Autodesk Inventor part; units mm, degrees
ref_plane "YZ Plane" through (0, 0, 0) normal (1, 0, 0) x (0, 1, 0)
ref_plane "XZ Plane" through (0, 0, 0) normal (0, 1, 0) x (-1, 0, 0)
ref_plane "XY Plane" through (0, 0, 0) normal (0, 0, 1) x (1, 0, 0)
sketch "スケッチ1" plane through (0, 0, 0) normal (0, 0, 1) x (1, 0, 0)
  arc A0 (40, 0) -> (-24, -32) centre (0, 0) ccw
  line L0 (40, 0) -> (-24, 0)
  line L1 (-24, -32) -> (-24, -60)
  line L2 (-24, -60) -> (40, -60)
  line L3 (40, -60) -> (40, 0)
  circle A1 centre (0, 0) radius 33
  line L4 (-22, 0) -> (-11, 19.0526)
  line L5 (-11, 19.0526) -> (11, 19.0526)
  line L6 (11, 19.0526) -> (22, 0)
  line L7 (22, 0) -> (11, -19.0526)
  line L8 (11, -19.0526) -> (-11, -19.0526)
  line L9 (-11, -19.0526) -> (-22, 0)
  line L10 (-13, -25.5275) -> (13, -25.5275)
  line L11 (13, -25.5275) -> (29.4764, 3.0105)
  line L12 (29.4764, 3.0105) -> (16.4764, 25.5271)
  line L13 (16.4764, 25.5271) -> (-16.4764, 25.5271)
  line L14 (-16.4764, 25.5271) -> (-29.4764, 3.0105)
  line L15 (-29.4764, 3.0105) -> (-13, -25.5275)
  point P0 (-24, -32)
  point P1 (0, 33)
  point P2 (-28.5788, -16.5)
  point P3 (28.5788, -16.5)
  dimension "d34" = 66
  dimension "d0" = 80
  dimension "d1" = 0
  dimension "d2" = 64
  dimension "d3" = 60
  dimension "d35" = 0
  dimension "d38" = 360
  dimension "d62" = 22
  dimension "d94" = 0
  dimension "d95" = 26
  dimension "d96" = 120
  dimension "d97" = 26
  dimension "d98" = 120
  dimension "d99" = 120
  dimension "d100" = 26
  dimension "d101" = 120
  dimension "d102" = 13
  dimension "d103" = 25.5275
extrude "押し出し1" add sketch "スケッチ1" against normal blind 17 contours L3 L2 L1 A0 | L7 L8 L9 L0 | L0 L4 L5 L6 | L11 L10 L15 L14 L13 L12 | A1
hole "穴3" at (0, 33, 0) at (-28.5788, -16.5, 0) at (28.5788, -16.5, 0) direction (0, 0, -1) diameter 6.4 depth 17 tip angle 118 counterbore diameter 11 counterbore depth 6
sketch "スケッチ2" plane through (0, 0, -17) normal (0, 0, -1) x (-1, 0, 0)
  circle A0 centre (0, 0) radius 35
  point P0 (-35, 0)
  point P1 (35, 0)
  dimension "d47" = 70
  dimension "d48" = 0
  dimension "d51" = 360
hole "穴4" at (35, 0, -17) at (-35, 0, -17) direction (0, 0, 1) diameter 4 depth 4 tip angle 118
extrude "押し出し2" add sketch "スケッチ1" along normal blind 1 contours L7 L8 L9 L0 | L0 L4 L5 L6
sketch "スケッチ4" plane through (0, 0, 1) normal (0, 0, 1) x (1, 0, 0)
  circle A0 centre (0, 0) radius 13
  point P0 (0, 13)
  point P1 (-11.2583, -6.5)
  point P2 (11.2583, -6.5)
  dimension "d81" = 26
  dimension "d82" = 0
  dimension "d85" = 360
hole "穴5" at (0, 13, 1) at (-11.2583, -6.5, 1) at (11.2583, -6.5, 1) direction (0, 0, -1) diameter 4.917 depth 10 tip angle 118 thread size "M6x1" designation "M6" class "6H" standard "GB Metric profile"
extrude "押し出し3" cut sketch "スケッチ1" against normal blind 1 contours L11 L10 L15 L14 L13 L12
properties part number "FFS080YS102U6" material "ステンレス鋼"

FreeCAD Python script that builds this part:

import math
import FreeCAD as App
import Part
import Sketcher
Q = App.Units.Quantity


def add_polygon(sketch, points):
    """Adds a closed chain of lines whose ends are joined by coincident constraints."""
    first, n = sketch.GeometryCount, len(points)
    for a, b in zip(points, points[1:] + points[:1]):
        sketch.addGeometry(Part.LineSegment(App.Vector(*a, 0), App.Vector(*b, 0)), False)
    for i in range(n):
        sketch.addConstraint(Sketcher.Constraint("Coincident", first + i, 2, first + (i + 1) % n, 1))

doc = App.newDocument("Part")
body = doc.addObject("PartDesign::Body", "Body")

# Sketch on XY plane
sketch1 = doc.addObject("Sketcher::SketchObject", "Sketch")
body.addObject(sketch1)
sketch1.AttachmentSupport = (doc.XY_Plane, [""])
sketch1.MapMode = "FlatFace"
sketch1.addGeometry([
    Part.LineSegment(App.Vector(40, -60, 0), App.Vector(40, 0, 0)),
    Part.ArcOfCircle(Part.Circle(App.Vector(0, 0, 0), App.Vector(0, 0, 1), 40), math.radians(0), math.radians(233.130102)),
    Part.LineSegment(App.Vector(-24, -32, 0), App.Vector(-24, -60, 0)),
    Part.LineSegment(App.Vector(-24, -60, 0), App.Vector(40, -60, 0)),
], False)
sketch1.addConstraint([
    Sketcher.Constraint("Tangent", 0, 2, 1, 1),
    Sketcher.Constraint("Coincident", 1, 2, 2, 1),
    Sketcher.Constraint("Coincident", 2, 2, 3, 1),
    Sketcher.Constraint("Coincident", 3, 2, 0, 1),
    Sketcher.Constraint("Vertical", 0),
    Sketcher.Constraint("Vertical", 2),
    Sketcher.Constraint("Horizontal", 3),
    Sketcher.Constraint("Coincident", 1, 3, -1, 1),
    Sketcher.Constraint("Radius", 1, 40.0),
    Sketcher.Constraint("DistanceX", 3, 1, 3, 2, 64.0),
    Sketcher.Constraint("DistanceY", 0, 1, 0, 2, 60.0),
])
pad1 = doc.addObject("PartDesign::Pad", "Pad")
body.addObject(pad1)
pad1.Profile = sketch1
pad1.Length = 17
pad1.Reversed = True

# Sketch on XY plane
sketch2 = doc.addObject("Sketcher::SketchObject", "Sketch001")
body.addObject(sketch2)
sketch2.AttachmentSupport = (doc.XY_Plane, [""])
sketch2.MapMode = "FlatFace"
sketch2.addGeometry([
    Part.Circle(App.Vector(0, 33, 0), App.Vector(0, 0, 1), 3.2),
    Part.Circle(App.Vector(-28.5788, -16.5, 0), App.Vector(0, 0, 1), 3.2),
    Part.Circle(App.Vector(28.5788, -16.5, 0), App.Vector(0, 0, 1), 3.2),
], False)
sketch2.addConstraint([
    Sketcher.Constraint("Equal", 0, 1),
    Sketcher.Constraint("Equal", 1, 2),
    Sketcher.Constraint("Symmetric", 1, 3, 2, 3, -2),
    Sketcher.Constraint("PointOnObject", 0, 3, -2),
    Sketcher.Constraint("Diameter", 0, 6.4),
    Sketcher.Constraint("DistanceY", -1, 1, 0, 3, 33.0),
    Sketcher.Constraint("DistanceY", 1, 3, -1, 1, 16.5),
    Sketcher.Constraint("DistanceX", 1, 3, -1, 1, 28.5788),
])
doc.recompute()
hole = doc.addObject("PartDesign::Hole", "Hole")
body.addObject(hole)
hole.Profile = sketch2
hole.ThreadType = "None"
hole.Diameter = 6.4
hole.DepthType = "Dimension"
hole.Depth = 17
hole.DrillPoint = "Angled"
hole.DrillPointAngle = 118
hole.HoleCutType = "Counterbore"
hole.HoleCutDiameter = 11
hole.HoleCutDepth = 6

# Sketch on XY plane
sketch3 = doc.addObject("Sketcher::SketchObject", "Sketch002")
body.addObject(sketch3)
sketch3.AttachmentSupport = (doc.XY_Plane, [""])
sketch3.MapMode = "FlatFace"
sketch3.AttachmentOffset = App.Placement(App.Vector(0, 0, -17), App.Rotation())
sketch3.addGeometry([
    Part.Circle(App.Vector(35, 0, 0), App.Vector(0, 0, 1), 2),
    Part.Circle(App.Vector(-35, 0, 0), App.Vector(0, 0, 1), 2),
], False)
sketch3.addConstraint([
    Sketcher.Constraint("Equal", 0, 1),
    Sketcher.Constraint("Symmetric", 0, 3, 1, 3, -1, 1),
    Sketcher.Constraint("PointOnObject", 0, 3, -1),
    Sketcher.Constraint("Diameter", 0, 4.0),
    Sketcher.Constraint("DistanceX", -1, 1, 0, 3, 35.0),
])
doc.recompute()
hole2 = doc.addObject("PartDesign::Hole", "Hole001")
body.addObject(hole2)
hole2.Profile = sketch3
hole2.ThreadType = "None"
hole2.Diameter = 4
hole2.DepthType = "Dimension"
hole2.Depth = 4
hole2.DrillPoint = "Angled"
hole2.DrillPointAngle = 118
hole2.Reversed = True

# Sketch on XY plane
sketch4 = doc.addObject("Sketcher::SketchObject", "Sketch003")
body.addObject(sketch4)
sketch4.AttachmentSupport = (doc.XY_Plane, [""])
sketch4.MapMode = "FlatFace"
add_polygon(sketch4, [(11, -19.0526), (22, 0), (11, 19.0526), (-11, 19.0526), (-22, 0), (-11, -19.0526)])  # lines 0-5
sketch4.addConstraint([
    Sketcher.Constraint("Horizontal", 2),
    Sketcher.Constraint("Horizontal", 5),
    Sketcher.Constraint("Symmetric", 0, 2, 3, 2, -1, 1),
    Sketcher.Constraint("Symmetric", 1, 2, 4, 2, -1, 1),
    Sketcher.Constraint("PointOnObject", 0, 2, -1),
    Sketcher.Constraint("Parallel", 0, 3),
    Sketcher.Constraint("Vertical", 2, 2, 4, 2),
    Sketcher.Constraint("DistanceX", 2, 2, 2, 1, 22.0),
    Sketcher.Constraint("Angle", 0, Q("60 deg")),
    Sketcher.Constraint("Distance", 0, 22.0),
])
pad2 = doc.addObject("PartDesign::Pad", "Pad001")
body.addObject(pad2)
pad2.Profile = sketch4
pad2.Length = 1

# Sketch on XY plane
sketch5 = doc.addObject("Sketcher::SketchObject", "Sketch004")
body.addObject(sketch5)
sketch5.AttachmentSupport = (doc.XY_Plane, [""])
sketch5.MapMode = "FlatFace"
sketch5.AttachmentOffset = App.Placement(App.Vector(0, 0, 1), App.Rotation())
sketch5.addGeometry([
    Part.Circle(App.Vector(0, 13, 0), App.Vector(0, 0, 1), 2.4585),
    Part.Circle(App.Vector(-11.2583, -6.5, 0), App.Vector(0, 0, 1), 2.4585),
    Part.Circle(App.Vector(11.2583, -6.5, 0), App.Vector(0, 0, 1), 2.4585),
], False)
sketch5.addConstraint([
    Sketcher.Constraint("Equal", 0, 1),
    Sketcher.Constraint("Equal", 1, 2),
    Sketcher.Constraint("Symmetric", 1, 3, 2, 3, -2),
    Sketcher.Constraint("PointOnObject", 0, 3, -2),
    Sketcher.Constraint("Diameter", 0, 4.917),
    Sketcher.Constraint("DistanceY", -1, 1, 0, 3, 13.0),
    Sketcher.Constraint("DistanceY", 1, 3, -1, 1, 6.5),
    Sketcher.Constraint("DistanceX", 1, 3, -1, 1, 11.2583),
])
doc.recompute()
hole3 = doc.addObject("PartDesign::Hole", "Hole002")
body.addObject(hole3)
hole3.Profile = sketch5
hole3.ThreadType = "None"
hole3.Diameter = 4.917
hole3.DepthType = "Dimension"
hole3.Depth = 10
hole3.DrillPoint = "Angled"
hole3.DrillPointAngle = 118

# Sketch on XY plane
sketch6 = doc.addObject("Sketcher::SketchObject", "Sketch005")
body.addObject(sketch6)
sketch6.AttachmentSupport = (doc.XY_Plane, [""])
sketch6.MapMode = "FlatFace"
add_polygon(sketch6, [(13, -25.5275), (27.738289, 0), (29.4764, 3.0105), (16.4764, 25.5271), (-16.4764, 25.5271), (-29.4764, 3.0105), (-13, -25.5275)])  # lines 0-6
add_polygon(sketch6, [(11, 19.0526), (22, 0), (11, -19.0526), (-11, -19.0526), (-22, 0), (-11, 19.0526)])  # lines 7-12
sketch6.addConstraint([
    Sketcher.Constraint("Horizontal", 3),
    Sketcher.Constraint("Horizontal", 6),
    Sketcher.Constraint("Horizontal", 9),
    Sketcher.Constraint("Horizontal", 12),
    Sketcher.Constraint("Symmetric", 7, 2, 10, 2, -1, 1),
    Sketcher.Constraint("Symmetric", 8, 2, 11, 2, -1, 1),
    Sketcher.Constraint("Symmetric", 1, 2, 4, 2, -2),
    Sketcher.Constraint("PointOnObject", 0, 2, -1),
    Sketcher.Constraint("PointOnObject", 7, 2, -1),
    Sketcher.Constraint("Parallel", 0, 1),
    Sketcher.Constraint("Parallel", 1, 4),
    Sketcher.Constraint("Parallel", 2, 5),
    Sketcher.Constraint("Parallel", 5, 7),
    Sketcher.Constraint("Parallel", 4, 8),
    Sketcher.Constraint("Parallel", 7, 10),
    Sketcher.Constraint("Vertical", 9, 2, 11, 2),
    Sketcher.Constraint("DistanceX", 6, 1, 6, 2, 26.0),
    Sketcher.Constraint("DistanceX", 9, 2, 9, 1, 22.0),
    Sketcher.Constraint("Angle", 0, Q("60 deg")),
    Sketcher.Constraint("Distance", 2, 26.0),
    Sketcher.Constraint("Distance", 7, 22.0),
    Sketcher.Constraint("DistanceY", -1, 1, 2, 2, 25.527),
    Sketcher.Constraint("DistanceY", 5, 2, -1, 1, 25.5275),
])
pocket1 = doc.addObject("PartDesign::Pocket", "Pocket")
body.addObject(pocket1)
pocket1.Profile = sketch6
pocket1.Length = 1

doc.recompute()
